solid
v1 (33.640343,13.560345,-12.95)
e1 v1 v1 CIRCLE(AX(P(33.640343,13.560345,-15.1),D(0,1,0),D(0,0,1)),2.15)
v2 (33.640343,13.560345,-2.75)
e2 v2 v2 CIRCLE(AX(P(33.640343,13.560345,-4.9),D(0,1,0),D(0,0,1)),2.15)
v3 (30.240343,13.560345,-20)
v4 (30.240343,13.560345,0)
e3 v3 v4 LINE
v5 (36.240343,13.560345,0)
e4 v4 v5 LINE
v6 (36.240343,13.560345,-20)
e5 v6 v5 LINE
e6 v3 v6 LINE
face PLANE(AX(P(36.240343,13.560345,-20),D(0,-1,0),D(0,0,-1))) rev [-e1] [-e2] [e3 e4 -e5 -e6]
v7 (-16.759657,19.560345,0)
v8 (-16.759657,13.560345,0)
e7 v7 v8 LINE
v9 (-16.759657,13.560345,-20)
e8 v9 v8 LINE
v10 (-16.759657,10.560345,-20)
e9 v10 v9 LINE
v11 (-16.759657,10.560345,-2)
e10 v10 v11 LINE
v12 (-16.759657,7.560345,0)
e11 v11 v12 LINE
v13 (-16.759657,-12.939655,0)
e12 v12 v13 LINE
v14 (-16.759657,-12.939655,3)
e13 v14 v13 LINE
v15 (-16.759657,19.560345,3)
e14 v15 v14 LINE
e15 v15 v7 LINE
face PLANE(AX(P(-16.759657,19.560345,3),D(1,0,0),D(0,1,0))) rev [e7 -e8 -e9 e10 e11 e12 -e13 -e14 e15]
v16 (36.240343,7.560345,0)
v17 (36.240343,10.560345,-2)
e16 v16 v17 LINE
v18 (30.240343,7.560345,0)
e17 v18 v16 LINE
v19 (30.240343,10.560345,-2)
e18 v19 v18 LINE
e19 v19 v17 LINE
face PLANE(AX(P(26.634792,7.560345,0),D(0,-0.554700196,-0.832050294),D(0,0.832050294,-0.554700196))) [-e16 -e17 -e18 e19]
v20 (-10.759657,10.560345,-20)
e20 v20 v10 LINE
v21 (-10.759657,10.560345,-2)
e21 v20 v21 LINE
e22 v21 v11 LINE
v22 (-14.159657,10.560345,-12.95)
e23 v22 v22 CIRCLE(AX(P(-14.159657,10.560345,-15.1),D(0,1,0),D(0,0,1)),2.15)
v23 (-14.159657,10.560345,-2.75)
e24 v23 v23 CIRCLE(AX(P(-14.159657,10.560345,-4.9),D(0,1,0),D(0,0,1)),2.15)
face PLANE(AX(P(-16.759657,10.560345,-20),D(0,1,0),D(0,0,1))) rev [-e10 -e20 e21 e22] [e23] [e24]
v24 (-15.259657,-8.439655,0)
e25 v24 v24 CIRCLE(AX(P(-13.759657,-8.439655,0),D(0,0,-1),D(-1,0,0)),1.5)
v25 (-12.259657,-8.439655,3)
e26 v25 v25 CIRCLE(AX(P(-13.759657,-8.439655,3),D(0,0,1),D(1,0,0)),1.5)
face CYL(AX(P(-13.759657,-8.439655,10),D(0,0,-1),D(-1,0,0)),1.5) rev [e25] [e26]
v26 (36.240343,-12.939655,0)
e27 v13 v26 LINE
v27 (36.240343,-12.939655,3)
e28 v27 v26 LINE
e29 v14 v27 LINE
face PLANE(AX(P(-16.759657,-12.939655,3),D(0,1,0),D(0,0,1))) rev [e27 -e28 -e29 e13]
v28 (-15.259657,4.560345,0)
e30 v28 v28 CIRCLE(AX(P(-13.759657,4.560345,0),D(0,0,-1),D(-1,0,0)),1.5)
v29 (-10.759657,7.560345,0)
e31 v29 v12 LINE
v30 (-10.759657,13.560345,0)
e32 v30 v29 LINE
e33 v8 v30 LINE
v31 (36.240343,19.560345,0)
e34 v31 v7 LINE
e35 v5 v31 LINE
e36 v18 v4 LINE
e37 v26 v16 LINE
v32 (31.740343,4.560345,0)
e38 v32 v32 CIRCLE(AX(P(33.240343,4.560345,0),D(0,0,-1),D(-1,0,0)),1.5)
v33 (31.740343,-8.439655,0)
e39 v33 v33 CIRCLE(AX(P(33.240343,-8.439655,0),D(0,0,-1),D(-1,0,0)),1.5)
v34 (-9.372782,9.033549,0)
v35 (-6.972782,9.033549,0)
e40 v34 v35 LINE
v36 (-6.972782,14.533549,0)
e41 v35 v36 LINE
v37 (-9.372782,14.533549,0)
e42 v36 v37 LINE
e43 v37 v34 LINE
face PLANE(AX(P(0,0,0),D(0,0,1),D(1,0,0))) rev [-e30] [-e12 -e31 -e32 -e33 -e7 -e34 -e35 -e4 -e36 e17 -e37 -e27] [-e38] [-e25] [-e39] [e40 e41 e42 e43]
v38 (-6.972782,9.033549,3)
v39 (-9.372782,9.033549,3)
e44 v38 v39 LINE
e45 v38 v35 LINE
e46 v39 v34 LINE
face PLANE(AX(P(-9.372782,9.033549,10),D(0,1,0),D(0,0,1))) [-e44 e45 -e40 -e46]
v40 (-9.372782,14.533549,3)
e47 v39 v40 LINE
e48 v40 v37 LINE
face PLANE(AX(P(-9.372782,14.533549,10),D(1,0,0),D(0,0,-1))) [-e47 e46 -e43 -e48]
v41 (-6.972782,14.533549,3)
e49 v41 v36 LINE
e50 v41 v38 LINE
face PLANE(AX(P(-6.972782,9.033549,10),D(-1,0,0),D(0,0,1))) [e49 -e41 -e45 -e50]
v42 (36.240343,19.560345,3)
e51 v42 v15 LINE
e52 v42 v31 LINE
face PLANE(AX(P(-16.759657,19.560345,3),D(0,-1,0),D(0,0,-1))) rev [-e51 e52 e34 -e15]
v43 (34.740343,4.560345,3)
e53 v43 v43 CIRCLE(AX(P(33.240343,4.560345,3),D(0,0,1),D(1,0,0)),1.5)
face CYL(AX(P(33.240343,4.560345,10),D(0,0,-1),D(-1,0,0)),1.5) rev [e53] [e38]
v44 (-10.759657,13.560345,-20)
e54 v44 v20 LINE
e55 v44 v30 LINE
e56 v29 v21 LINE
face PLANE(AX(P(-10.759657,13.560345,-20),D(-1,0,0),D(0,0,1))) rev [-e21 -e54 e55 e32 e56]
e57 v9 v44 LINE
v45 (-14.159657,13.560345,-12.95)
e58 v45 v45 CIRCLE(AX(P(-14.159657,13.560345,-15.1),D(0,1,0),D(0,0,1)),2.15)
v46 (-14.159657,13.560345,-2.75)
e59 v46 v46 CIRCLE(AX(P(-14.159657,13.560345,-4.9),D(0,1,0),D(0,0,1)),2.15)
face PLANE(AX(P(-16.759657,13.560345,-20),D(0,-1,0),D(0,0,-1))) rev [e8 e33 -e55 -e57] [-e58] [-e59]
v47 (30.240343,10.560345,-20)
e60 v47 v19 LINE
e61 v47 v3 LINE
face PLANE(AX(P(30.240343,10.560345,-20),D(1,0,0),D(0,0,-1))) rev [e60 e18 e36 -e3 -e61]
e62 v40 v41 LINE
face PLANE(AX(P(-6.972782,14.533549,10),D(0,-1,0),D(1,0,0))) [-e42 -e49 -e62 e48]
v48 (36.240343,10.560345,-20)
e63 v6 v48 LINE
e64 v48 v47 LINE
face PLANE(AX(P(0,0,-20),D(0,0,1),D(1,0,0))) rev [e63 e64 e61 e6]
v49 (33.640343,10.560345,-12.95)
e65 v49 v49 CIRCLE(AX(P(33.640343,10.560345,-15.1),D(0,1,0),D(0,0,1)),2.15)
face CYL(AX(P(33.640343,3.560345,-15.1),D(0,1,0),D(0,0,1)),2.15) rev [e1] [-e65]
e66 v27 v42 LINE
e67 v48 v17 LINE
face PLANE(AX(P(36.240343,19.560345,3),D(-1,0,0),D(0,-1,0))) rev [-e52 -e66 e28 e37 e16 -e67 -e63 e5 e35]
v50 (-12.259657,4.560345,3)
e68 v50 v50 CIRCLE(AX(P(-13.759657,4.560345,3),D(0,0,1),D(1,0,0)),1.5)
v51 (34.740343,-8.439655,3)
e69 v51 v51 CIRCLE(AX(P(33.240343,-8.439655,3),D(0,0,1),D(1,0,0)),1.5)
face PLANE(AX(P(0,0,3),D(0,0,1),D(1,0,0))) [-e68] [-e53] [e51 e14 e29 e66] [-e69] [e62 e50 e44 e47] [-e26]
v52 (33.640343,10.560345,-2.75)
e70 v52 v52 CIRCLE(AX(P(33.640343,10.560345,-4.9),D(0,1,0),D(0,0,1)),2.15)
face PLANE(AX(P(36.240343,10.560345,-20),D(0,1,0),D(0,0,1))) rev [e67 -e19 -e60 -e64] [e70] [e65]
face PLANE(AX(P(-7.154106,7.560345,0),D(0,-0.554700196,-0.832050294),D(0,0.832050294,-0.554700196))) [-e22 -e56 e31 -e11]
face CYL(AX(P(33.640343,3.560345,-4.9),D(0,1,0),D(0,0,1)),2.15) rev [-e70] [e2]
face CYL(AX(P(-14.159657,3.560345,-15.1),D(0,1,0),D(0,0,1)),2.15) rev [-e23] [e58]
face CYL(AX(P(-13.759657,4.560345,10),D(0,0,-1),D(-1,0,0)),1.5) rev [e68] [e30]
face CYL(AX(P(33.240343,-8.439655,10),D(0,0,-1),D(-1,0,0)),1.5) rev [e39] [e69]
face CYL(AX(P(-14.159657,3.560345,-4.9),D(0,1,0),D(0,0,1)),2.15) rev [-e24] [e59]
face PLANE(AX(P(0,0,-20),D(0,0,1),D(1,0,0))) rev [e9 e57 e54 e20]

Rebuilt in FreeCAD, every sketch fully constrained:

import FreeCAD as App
import Part
import Sketcher
from FreeCAD import Vector

doc = App.newDocument("Part")
body = doc.addObject("PartDesign::Body", "Body")

# Sketch on XY plane
sketch1 = body.newObject("Sketcher::SketchObject", "Sketch")
sketch1.AttachmentSupport = (doc.getObject("XY_Plane"), [""])
sketch1.MapMode = "FlatFace"
sketch1.addGeometry([
    Part.LineSegment(Vector(-17, 20, 0), Vector(-17, -13, 0)),
    Part.LineSegment(Vector(-17, -13, 0), Vector(36, -13, 0)),
    Part.LineSegment(Vector(36, -13, 0), Vector(36, 20, 0)),
    Part.LineSegment(Vector(36, 20, 0), Vector(-17, 20, 0)),
], False)
sketch1.addConstraint([
    Sketcher.Constraint("Coincident", 0, 2, 1, 1),
    Sketcher.Constraint("Coincident", 1, 2, 2, 1),
    Sketcher.Constraint("Coincident", 2, 2, 3, 1),
    Sketcher.Constraint("Coincident", 3, 2, 0, 1),
    Sketcher.Constraint("Vertical", 0),
    Sketcher.Constraint("Horizontal", 1),
    Sketcher.Constraint("Vertical", 2),
    Sketcher.Constraint("Horizontal", 3),
    Sketcher.Constraint("DistanceX", 1, 1, 1, 2, 53.0),
    Sketcher.Constraint("DistanceY", 0, 2, 0, 1, 32.5),
    Sketcher.Constraint("DistanceX", 0, 2, -1, 1, 16.759657),
    Sketcher.Constraint("DistanceY", 0, 2, -1, 1, 12.939655),
])
pad1 = body.newObject("PartDesign::Pad", "Pad")
pad1.Profile = sketch1
pad1.Length = 3

# Sketch on XY plane
sketch2 = body.newObject("Sketcher::SketchObject", "Sketch001")
sketch2.AttachmentSupport = (doc.getObject("XY_Plane"), [""])
sketch2.MapMode = "FlatFace"
sketch2.addGeometry([
    Part.LineSegment(Vector(36.2, 13.6, 0), Vector(36.2, 10.6, 0)),  # 0
    Part.LineSegment(Vector(36.2, 10.6, 0), Vector(30.2, 10.6, 0)),  # 1
    Part.LineSegment(Vector(30.2, 10.6, 0), Vector(30.2, 13.6, 0)),  # 2
    Part.LineSegment(Vector(30.2, 13.6, 0), Vector(36.2, 13.6, 0)),  # 3
    Part.LineSegment(Vector(-10.8, 13.6, 0), Vector(-10.8, 10.6, 0)),  # 4
    Part.LineSegment(Vector(-10.8, 10.6, 0), Vector(-16.8, 10.6, 0)),  # 5
    Part.LineSegment(Vector(-16.8, 10.6, 0), Vector(-16.8, 13.6, 0)),  # 6
    Part.LineSegment(Vector(-16.8, 13.6, 0), Vector(-10.8, 13.6, 0)),  # 7
], False)
sketch2.addConstraint([
    Sketcher.Constraint("Coincident", 0, 2, 1, 1),
    Sketcher.Constraint("Coincident", 1, 2, 2, 1),
    Sketcher.Constraint("Coincident", 2, 2, 3, 1),
    Sketcher.Constraint("Coincident", 3, 2, 0, 1),
    Sketcher.Constraint("Coincident", 4, 2, 5, 1),
    Sketcher.Constraint("Coincident", 5, 2, 6, 1),
    Sketcher.Constraint("Coincident", 6, 2, 7, 1),
    Sketcher.Constraint("Coincident", 7, 2, 4, 1),
    Sketcher.Constraint("Vertical", 0),
    Sketcher.Constraint("Horizontal", 1),
    Sketcher.Constraint("Vertical", 2),
    Sketcher.Constraint("Horizontal", 3),
    Sketcher.Constraint("Vertical", 4),
    Sketcher.Constraint("Horizontal", 5),
    Sketcher.Constraint("Vertical", 6),
    Sketcher.Constraint("Horizontal", 7),
    Sketcher.Constraint("Horizontal", 1, 2, 4, 2),
    Sketcher.Constraint("Horizontal", 3, 2, 6, 2),
    Sketcher.Constraint("Equal", 3, 5),
    Sketcher.Constraint("DistanceX", 1, 2, 1, 1, 6.0),
    Sketcher.Constraint("DistanceY", 0, 2, 0, 1, 3.0),
    Sketcher.Constraint("DistanceX", 4, 2, 1, 2, 41.0),
    Sketcher.Constraint("DistanceX", -1, 1, 0, 2, 36.240343),
    Sketcher.Constraint("DistanceY", -1, 1, 0, 2, 10.560345),
])
pad2 = body.newObject("PartDesign::Pad", "Pad001")
pad2.Profile = sketch2
pad2.Length = 20
pad2.Reversed = True

# Sketch on XZ plane
sketch3 = body.newObject("Sketcher::SketchObject", "Sketch002")
sketch3.AttachmentSupport = (doc.getObject("XZ_Plane"), [""])
sketch3.MapMode = "FlatFace"
sketch3.AttachmentOffset = App.Placement(Vector(0, 0, -13.560345), App.Rotation())
sketch3.addGeometry([
    Part.Circle(Vector(33.6, -4.9, 0), Vector(0, 0, 1), 2.1),
    Part.Circle(Vector(33.6, -15.1, 0), Vector(0, 0, 1), 2.1),
    Part.Circle(Vector(-14.2, -4.9, 0), Vector(0, 0, 1), 2.1),
    Part.Circle(Vector(-14.2, -15.1, 0), Vector(0, 0, 1), 2.1),
], False)
sketch3.addConstraint([
    Sketcher.Constraint("Equal", 0, 1),
    Sketcher.Constraint("Equal", 1, 2),
    Sketcher.Constraint("Equal", 2, 3),
    Sketcher.Constraint("Horizontal", 0, 3, 2, 3),
    Sketcher.Constraint("Horizontal", 1, 3, 3, 3),
    Sketcher.Constraint("Vertical", 0, 3, 1, 3),
    Sketcher.Constraint("Vertical", 2, 3, 3, 3),
    Sketcher.Constraint("Diameter", 0, 4.3),
    Sketcher.Constraint("DistanceY", 0, 3, -1, 1, 4.9),
    Sketcher.Constraint("DistanceY", 1, 3, -1, 1, 15.1),
    Sketcher.Constraint("DistanceX", 2, 3, 0, 3, 47.8),
    Sketcher.Constraint("DistanceX", -1, 1, 0, 3, 33.640343),
])
pocket1 = body.newObject("PartDesign::Pocket", "Pocket")
pocket1.Profile = sketch3
pocket1.Length = 10
pocket1.Reversed = True

# Sketch on XY plane
sketch4 = body.newObject("Sketcher::SketchObject", "Sketch003")
sketch4.AttachmentSupport = (doc.getObject("XY_Plane"), [""])
sketch4.MapMode = "FlatFace"
sketch4.addGeometry([
    Part.LineSegment(Vector(-7, 14.5, 0), Vector(-7, 9, 0)),
    Part.LineSegment(Vector(-7, 9, 0), Vector(-9.4, 9, 0)),
    Part.LineSegment(Vector(-9.4, 9, 0), Vector(-9.4, 14.5, 0)),
    Part.LineSegment(Vector(-9.4, 14.5, 0), Vector(-7, 14.5, 0)),
], False)
sketch4.addConstraint([
    Sketcher.Constraint("Coincident", 0, 2, 1, 1),
    Sketcher.Constraint("Coincident", 1, 2, 2, 1),
    Sketcher.Constraint("Coincident", 2, 2, 3, 1),
    Sketcher.Constraint("Coincident", 3, 2, 0, 1),
    Sketcher.Constraint("Vertical", 0),
    Sketcher.Constraint("Horizontal", 1),
    Sketcher.Constraint("Vertical", 2),
    Sketcher.Constraint("Horizontal", 3),
    Sketcher.Constraint("DistanceX", 1, 2, 1, 1, 2.4),
    Sketcher.Constraint("DistanceY", 0, 2, 0, 1, 5.5),
    Sketcher.Constraint("DistanceX", 0, 2, -1, 1, 6.972782),
    Sketcher.Constraint("DistanceY", -1, 1, 0, 2, 9.033549),
])
pocket2 = body.newObject("PartDesign::Pocket", "Pocket001")
pocket2.Profile = sketch4
pocket2.Length = 10
pocket2.Reversed = True

# Sketch on XY plane
sketch5 = body.newObject("Sketcher::SketchObject", "Sketch004")
sketch5.AttachmentSupport = (doc.getObject("XY_Plane"), [""])
sketch5.MapMode = "FlatFace"
sketch5.addGeometry([
    Part.Circle(Vector(33.2, 4.6, 0), Vector(0, 0, 1), 1.5),
    Part.Circle(Vector(33.2, -8.4, 0), Vector(0, 0, 1), 1.5),
    Part.Circle(Vector(-13.8, -8.4, 0), Vector(0, 0, 1), 1.5),
    Part.Circle(Vector(-13.8, 4.6, 0), Vector(0, 0, 1), 1.5),
], False)
sketch5.addConstraint([
    Sketcher.Constraint("Equal", 0, 1),
    Sketcher.Constraint("Equal", 1, 2),
    Sketcher.Constraint("Equal", 2, 3),
    Sketcher.Constraint("Horizontal", 1, 3, 2, 3),
    Sketcher.Constraint("Horizontal", 0, 3, 3, 3),
    Sketcher.Constraint("Vertical", 0, 3, 1, 3),
    Sketcher.Constraint("Vertical", 2, 3, 3, 3),
    Sketcher.Constraint("Diameter", 0, 3.0),
    Sketcher.Constraint("DistanceY", 1, 3, 0, 3, 13.0),
    Sketcher.Constraint("DistanceX", 2, 3, 1, 3, 47.0),
    Sketcher.Constraint("DistanceX", -1, 1, 0, 3, 33.240343),
    Sketcher.Constraint("DistanceY", -1, 1, 0, 3, 4.560345),
])
pocket3 = body.newObject("PartDesign::Pocket", "Pocket002")
pocket3.Profile = sketch5
pocket3.Length = 10
pocket3.Reversed = True

# Sketch on YZ plane
sketch6 = body.newObject("Sketcher::SketchObject", "Sketch005")
sketch6.AttachmentSupport = (doc.getObject("YZ_Plane"), [""])
sketch6.MapMode = "FlatFace"
sketch6.AttachmentOffset = App.Placement(Vector(0, 0, -16.759657), App.Rotation())
sketch6.addGeometry([
    Part.LineSegment(Vector(10.6, 0, 0), Vector(10.6, -2, 0)),
    Part.LineSegment(Vector(10.6, -2, 0), Vector(7.6, 0, 0)),
    Part.LineSegment(Vector(7.6, 0, 0), Vector(10.6, 0, 0)),
], False)
sketch6.addConstraint([
    Sketcher.Constraint("Coincident", 0, 2, 1, 1),
    Sketcher.Constraint("Coincident", 1, 2, 2, 1),
    Sketcher.Constraint("Coincident", 2, 2, 0, 1),
    Sketcher.Constraint("Vertical", 0),
    Sketcher.Constraint("Horizontal", 2),
    Sketcher.Constraint("PointOnObject", 1, 2, -1),
    Sketcher.Constraint("DistanceX", 2, 1, 2, 2, 3.0),
    Sketcher.Constraint("DistanceY", 0, 2, 0, 1, 2.0),
    Sketcher.Constraint("DistanceX", -1, 1, 0, 2, 10.560345),
])
pad3 = body.newObject("PartDesign::Pad", "Pad002")
pad3.Profile = sketch6
pad3.Length = 6

# Sketch on YZ plane
sketch7 = body.newObject("Sketcher::SketchObject", "Sketch006")
sketch7.AttachmentSupport = (doc.getObject("YZ_Plane"), [""])
sketch7.MapMode = "FlatFace"
sketch7.AttachmentOffset = App.Placement(Vector(0, 0, 36.240343), App.Rotation())
sketch7.addGeometry([
    Part.LineSegment(Vector(10.6, -2, 0), Vector(10.6, 0, 0)),
    Part.LineSegment(Vector(10.6, 0, 0), Vector(7.6, 0, 0)),
    Part.LineSegment(Vector(7.6, 0, 0), Vector(10.6, -2, 0)),
], False)
sketch7.addConstraint([
    Sketcher.Constraint("Coincident", 0, 2, 1, 1),
    Sketcher.Constraint("Coincident", 1, 2, 2, 1),
    Sketcher.Constraint("Coincident", 2, 2, 0, 1),
    Sketcher.Constraint("Vertical", 0),
    Sketcher.Constraint("Horizontal", 1),
    Sketcher.Constraint("PointOnObject", 0, 2, -1),
    Sketcher.Constraint("DistanceX", 1, 2, 1, 1, 3.0),
    Sketcher.Constraint("DistanceY", 0, 1, 0, 2, 2.0),
    Sketcher.Constraint("DistanceX", -1, 1, 0, 2, 10.560345),
])
pad4 = body.newObject("PartDesign::Pad", "Pad003")
pad4.Profile = sketch7
pad4.Length = 6
pad4.Reversed = True

doc.recompute()
